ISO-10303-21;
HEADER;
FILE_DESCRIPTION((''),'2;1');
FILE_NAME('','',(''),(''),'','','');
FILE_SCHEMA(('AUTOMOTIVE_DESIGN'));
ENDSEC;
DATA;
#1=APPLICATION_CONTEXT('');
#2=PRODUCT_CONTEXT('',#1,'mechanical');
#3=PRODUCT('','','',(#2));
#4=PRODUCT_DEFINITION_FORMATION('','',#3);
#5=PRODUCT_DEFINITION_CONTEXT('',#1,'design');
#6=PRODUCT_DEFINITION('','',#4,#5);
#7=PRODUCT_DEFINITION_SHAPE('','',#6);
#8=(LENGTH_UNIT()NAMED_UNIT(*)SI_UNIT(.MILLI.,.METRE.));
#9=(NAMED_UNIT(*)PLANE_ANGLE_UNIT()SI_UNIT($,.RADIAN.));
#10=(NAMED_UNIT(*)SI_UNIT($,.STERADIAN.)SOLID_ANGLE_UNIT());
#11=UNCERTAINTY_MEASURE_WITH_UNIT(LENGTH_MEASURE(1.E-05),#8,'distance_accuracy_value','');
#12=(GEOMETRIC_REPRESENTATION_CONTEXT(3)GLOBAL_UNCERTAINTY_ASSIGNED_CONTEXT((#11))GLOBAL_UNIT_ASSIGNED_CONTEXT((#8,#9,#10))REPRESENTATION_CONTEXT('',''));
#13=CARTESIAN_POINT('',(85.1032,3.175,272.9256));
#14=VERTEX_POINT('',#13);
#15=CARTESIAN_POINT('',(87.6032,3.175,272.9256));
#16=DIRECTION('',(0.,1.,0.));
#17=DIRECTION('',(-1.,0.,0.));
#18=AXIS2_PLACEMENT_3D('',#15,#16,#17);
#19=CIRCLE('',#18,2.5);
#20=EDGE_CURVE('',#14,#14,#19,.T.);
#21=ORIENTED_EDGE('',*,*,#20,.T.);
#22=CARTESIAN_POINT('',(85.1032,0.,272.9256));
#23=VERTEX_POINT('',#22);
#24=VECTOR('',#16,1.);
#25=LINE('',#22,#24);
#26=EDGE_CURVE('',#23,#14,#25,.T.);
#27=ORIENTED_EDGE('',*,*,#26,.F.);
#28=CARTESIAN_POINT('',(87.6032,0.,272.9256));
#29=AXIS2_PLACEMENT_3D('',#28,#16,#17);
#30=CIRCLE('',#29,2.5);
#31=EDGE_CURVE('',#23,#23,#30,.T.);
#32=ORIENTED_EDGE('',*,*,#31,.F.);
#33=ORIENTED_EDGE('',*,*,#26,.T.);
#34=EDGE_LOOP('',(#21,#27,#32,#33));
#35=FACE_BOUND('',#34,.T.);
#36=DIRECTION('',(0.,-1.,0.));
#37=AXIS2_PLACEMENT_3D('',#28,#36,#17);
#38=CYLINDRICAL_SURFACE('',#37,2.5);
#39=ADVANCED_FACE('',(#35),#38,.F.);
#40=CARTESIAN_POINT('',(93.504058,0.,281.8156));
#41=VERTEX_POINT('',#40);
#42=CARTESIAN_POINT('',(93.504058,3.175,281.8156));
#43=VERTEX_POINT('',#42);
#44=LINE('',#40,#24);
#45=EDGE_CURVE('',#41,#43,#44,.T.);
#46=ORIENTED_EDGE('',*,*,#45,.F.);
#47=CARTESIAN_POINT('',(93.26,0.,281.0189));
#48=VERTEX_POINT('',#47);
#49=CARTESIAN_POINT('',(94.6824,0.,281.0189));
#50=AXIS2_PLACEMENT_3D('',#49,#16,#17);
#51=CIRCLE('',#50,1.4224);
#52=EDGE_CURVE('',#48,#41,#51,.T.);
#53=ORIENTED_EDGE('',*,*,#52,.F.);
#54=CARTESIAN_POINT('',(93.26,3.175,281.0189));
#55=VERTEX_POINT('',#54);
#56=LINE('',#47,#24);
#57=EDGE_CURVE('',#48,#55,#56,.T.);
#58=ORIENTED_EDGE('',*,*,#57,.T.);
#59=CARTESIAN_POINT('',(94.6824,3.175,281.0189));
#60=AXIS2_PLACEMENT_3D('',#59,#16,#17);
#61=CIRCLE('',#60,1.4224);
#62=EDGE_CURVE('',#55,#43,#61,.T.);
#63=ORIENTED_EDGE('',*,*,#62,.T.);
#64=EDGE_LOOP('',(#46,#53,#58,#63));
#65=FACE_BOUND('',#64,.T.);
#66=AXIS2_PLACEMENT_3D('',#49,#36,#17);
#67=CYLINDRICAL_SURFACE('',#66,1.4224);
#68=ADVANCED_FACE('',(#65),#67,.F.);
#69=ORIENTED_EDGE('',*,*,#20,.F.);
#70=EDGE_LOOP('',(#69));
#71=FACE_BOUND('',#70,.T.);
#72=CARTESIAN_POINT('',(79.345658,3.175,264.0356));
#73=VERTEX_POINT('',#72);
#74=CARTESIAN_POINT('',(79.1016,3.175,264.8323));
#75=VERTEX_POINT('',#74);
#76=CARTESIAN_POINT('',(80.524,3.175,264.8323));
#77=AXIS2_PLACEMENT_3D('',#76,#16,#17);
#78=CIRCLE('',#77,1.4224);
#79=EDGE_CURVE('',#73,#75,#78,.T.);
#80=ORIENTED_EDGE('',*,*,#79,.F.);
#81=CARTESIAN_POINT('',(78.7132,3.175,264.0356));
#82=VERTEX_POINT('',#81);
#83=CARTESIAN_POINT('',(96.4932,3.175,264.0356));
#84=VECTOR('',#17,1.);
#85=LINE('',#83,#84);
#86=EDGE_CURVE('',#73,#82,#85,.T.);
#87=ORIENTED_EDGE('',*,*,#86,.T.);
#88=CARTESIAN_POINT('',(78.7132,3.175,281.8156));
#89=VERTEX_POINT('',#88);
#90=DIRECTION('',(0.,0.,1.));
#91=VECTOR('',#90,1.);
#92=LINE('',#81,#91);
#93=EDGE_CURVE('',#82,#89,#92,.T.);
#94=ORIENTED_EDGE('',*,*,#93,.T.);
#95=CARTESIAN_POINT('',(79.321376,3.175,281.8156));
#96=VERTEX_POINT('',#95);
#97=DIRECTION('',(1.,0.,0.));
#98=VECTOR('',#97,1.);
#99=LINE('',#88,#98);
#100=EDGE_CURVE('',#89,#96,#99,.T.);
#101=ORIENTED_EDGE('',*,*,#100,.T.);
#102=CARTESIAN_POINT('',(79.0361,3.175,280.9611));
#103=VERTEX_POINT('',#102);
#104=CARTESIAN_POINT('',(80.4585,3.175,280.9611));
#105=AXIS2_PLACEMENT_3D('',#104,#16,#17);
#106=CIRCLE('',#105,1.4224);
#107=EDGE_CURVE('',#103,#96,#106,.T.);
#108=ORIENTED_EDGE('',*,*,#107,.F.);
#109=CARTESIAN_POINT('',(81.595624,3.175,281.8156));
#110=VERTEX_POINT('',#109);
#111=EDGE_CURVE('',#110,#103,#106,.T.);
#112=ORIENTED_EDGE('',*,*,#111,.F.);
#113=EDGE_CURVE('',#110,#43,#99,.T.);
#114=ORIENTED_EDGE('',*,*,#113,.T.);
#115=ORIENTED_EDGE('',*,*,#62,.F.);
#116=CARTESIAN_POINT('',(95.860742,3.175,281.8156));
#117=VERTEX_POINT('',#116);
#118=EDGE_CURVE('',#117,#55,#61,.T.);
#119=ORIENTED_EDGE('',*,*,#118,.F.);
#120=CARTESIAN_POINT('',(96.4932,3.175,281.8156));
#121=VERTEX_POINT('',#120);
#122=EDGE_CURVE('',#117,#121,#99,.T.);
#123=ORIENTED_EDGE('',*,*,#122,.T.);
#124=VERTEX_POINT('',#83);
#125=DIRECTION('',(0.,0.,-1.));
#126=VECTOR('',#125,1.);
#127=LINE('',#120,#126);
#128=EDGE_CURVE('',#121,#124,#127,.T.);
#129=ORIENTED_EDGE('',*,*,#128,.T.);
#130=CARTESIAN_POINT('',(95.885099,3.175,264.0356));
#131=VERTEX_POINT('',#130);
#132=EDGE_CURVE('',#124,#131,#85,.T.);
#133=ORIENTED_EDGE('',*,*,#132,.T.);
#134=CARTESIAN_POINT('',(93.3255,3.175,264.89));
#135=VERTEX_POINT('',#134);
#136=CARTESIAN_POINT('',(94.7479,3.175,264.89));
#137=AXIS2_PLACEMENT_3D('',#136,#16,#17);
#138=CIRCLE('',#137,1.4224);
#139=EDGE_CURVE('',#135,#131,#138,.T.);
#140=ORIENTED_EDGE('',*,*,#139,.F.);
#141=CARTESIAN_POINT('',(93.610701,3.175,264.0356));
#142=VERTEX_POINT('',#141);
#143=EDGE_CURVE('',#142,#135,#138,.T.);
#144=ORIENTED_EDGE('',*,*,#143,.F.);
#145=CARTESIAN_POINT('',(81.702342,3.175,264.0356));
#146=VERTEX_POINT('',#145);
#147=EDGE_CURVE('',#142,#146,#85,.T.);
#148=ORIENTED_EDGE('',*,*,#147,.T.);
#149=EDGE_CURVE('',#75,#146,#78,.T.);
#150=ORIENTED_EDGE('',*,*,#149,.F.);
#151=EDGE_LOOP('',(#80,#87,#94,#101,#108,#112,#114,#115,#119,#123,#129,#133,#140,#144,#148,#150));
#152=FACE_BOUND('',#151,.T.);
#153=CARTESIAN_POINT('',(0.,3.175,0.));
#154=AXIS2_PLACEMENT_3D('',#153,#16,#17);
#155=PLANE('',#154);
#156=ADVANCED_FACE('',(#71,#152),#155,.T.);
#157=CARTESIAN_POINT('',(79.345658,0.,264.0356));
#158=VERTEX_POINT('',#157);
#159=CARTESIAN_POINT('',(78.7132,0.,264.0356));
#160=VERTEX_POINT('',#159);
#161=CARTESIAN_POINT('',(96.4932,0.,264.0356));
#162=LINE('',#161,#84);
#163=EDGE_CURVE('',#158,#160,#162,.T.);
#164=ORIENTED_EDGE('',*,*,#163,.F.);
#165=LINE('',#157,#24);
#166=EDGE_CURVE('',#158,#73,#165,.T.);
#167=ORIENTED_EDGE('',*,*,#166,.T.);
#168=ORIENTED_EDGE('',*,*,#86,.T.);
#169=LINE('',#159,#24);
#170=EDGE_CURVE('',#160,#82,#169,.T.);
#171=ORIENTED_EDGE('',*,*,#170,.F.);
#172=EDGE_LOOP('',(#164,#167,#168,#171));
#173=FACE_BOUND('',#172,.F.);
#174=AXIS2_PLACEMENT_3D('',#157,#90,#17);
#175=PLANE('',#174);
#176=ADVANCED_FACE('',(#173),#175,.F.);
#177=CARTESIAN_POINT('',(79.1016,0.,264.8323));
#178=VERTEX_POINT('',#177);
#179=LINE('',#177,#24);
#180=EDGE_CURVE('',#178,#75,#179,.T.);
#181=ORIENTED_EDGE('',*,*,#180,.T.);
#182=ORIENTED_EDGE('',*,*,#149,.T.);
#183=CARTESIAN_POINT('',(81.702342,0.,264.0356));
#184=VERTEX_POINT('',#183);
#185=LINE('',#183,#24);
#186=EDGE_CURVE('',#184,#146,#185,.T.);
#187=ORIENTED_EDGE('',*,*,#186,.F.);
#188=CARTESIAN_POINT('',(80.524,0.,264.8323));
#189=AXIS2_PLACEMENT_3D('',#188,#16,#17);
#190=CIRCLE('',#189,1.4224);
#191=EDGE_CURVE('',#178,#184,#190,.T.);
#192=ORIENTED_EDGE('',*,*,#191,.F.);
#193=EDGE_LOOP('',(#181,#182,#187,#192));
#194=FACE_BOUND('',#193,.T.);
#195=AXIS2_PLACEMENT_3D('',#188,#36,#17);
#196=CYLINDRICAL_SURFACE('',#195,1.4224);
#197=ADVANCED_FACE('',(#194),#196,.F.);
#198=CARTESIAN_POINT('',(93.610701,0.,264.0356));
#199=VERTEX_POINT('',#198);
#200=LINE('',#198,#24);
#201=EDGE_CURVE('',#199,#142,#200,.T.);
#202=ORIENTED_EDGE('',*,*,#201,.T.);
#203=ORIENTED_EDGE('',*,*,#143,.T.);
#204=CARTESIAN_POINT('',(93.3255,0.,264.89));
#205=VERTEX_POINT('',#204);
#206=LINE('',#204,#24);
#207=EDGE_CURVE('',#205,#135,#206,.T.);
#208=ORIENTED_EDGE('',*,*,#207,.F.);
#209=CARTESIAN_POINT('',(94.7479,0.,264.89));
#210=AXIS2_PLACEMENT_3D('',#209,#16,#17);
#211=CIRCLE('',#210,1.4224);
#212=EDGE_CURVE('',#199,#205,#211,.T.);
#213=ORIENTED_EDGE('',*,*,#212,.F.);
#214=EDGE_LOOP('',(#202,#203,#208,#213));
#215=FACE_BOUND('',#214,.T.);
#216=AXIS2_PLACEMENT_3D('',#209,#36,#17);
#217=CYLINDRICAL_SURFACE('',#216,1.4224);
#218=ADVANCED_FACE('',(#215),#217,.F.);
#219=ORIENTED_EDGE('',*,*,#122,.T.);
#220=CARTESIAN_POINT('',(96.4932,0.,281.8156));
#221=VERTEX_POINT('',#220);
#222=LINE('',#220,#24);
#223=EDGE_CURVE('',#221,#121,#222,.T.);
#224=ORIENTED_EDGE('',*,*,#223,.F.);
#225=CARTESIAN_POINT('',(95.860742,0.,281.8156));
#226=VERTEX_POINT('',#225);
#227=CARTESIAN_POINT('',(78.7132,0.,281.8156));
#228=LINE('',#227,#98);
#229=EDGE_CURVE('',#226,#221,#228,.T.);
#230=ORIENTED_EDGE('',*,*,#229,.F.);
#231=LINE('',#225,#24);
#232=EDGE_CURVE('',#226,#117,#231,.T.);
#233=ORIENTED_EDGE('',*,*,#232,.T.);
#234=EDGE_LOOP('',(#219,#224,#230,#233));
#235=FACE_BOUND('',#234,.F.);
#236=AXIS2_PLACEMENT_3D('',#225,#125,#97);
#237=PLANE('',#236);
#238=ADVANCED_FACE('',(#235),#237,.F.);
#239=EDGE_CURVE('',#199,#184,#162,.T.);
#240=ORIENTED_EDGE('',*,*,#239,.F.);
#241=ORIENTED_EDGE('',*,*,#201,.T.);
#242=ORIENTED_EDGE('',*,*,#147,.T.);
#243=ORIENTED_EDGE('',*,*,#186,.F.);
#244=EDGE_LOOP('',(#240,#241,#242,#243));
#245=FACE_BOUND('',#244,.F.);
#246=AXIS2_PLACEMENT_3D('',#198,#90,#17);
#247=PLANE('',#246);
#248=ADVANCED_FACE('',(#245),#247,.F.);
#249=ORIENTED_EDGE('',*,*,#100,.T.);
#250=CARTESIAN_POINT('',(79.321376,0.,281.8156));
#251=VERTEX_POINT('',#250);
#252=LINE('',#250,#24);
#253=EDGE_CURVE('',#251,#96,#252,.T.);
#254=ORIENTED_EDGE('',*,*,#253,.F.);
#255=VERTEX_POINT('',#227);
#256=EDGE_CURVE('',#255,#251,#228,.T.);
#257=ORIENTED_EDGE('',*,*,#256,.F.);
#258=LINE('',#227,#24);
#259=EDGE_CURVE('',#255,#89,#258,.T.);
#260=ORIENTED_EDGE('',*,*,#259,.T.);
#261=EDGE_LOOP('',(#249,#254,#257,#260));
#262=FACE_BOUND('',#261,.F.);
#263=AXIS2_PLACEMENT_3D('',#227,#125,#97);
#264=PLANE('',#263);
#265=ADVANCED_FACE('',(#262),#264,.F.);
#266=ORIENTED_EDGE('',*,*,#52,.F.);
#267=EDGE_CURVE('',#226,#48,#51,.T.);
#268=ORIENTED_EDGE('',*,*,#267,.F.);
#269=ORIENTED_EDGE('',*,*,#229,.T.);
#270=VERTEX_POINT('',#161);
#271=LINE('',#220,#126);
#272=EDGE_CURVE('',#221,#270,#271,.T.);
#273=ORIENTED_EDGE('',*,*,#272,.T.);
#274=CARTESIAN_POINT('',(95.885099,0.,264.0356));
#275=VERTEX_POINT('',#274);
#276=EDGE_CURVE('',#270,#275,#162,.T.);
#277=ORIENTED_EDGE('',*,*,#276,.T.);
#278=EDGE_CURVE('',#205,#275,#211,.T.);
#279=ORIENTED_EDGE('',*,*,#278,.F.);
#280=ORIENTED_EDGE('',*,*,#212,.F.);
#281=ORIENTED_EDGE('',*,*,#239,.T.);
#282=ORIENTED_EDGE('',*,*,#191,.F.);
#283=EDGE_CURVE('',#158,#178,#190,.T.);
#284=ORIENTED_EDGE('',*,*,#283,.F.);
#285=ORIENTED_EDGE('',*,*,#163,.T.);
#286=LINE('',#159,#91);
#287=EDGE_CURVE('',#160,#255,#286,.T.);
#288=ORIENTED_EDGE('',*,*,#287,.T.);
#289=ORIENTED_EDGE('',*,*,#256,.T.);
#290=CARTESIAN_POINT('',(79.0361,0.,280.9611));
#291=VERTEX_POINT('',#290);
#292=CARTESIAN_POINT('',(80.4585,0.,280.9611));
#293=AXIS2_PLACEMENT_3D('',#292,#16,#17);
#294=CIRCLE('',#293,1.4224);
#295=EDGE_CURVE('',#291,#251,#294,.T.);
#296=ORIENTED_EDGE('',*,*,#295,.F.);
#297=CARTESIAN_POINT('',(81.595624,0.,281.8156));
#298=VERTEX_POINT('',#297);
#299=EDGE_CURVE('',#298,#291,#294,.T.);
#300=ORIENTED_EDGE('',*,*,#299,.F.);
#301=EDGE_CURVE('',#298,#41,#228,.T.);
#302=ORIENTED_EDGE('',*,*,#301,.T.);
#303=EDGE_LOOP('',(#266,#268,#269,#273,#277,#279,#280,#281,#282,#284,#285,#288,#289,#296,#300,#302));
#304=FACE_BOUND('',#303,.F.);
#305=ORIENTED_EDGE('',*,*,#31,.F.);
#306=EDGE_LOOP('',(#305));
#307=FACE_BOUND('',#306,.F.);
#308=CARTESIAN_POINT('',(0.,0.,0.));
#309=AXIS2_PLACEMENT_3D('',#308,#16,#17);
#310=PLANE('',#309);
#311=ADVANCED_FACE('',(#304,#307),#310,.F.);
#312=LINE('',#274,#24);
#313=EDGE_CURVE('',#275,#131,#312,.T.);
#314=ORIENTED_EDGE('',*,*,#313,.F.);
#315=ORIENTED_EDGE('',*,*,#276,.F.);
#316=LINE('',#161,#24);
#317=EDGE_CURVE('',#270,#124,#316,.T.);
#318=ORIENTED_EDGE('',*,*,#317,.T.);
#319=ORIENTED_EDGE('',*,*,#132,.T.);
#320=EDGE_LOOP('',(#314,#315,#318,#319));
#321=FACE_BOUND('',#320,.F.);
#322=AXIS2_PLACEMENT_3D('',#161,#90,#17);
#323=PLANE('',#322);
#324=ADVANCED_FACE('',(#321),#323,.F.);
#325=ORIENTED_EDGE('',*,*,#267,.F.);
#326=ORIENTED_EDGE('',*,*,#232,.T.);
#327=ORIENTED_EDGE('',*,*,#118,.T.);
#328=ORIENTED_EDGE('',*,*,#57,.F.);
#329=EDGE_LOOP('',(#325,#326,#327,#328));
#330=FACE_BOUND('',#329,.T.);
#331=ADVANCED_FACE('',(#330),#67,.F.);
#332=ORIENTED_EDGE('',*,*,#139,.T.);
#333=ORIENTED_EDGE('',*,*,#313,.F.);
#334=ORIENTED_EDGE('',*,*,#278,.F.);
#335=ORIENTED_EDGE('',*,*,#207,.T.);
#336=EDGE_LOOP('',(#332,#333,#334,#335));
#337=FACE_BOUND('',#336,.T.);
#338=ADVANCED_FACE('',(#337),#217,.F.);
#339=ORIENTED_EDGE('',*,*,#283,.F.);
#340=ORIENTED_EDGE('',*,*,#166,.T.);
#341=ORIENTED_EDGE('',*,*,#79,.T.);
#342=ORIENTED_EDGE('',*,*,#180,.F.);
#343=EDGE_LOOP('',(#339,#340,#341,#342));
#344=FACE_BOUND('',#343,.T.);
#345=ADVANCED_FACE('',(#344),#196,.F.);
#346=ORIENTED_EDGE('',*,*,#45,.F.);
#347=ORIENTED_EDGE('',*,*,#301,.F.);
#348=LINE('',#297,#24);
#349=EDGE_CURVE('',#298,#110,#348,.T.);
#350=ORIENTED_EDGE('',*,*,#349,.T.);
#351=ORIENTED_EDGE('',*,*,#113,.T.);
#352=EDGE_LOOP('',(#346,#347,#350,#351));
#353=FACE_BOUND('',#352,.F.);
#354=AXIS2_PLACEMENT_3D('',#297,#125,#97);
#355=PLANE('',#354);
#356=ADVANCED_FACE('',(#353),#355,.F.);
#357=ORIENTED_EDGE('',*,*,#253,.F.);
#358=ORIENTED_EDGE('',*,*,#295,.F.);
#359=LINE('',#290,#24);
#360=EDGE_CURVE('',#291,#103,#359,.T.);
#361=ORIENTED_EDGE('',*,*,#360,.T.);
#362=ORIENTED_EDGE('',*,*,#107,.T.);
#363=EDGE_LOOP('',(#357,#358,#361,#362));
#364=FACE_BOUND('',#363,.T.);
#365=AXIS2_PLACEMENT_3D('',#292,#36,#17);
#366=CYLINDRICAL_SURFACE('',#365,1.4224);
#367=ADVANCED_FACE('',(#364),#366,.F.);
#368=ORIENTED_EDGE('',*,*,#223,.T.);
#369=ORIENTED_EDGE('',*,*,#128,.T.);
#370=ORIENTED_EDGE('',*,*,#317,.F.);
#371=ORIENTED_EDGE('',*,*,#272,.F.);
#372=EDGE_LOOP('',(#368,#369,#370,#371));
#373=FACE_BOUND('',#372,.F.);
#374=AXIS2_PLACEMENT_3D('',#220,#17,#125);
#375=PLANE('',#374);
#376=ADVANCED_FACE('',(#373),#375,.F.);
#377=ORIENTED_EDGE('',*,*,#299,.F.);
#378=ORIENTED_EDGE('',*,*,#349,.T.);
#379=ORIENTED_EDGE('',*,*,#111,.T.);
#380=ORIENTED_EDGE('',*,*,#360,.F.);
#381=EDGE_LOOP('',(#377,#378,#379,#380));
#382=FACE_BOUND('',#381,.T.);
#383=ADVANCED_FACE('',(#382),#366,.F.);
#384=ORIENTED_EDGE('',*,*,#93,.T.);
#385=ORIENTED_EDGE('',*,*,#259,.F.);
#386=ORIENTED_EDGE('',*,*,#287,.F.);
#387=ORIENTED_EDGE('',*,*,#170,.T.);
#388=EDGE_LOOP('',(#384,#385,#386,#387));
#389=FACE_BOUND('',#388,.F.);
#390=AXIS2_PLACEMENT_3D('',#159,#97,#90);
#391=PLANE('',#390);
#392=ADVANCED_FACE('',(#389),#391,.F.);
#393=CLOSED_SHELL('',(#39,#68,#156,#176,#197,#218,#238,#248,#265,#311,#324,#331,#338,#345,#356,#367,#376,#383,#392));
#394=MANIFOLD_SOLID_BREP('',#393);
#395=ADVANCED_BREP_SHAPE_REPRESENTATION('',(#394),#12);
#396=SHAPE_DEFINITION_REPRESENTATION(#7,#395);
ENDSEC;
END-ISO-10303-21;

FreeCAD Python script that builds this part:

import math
import FreeCAD as App
import Part
import Sketcher
from FreeCAD import Vector
Q = App.Units.Quantity

doc = App.newDocument("Part")
body = doc.addObject("PartDesign::Body", "Body")

# Sketch on XZ plane
sketch1 = body.newObject("Sketcher::SketchObject", "Sketch")
sketch1.AttachmentSupport = (doc.getObject("XZ_Plane"), [""])
sketch1.MapMode = "FlatFace"
sketch1.addGeometry(Part.ArcOfCircle(Part.Circle(Vector(94.6824, 281.0189, 0), Vector(0, 0, 1), 1.4224), math.radians(145.936617), math.radians(394.063383)), False)
sketch1.addGeometry(Part.LineSegment(Vector(95.860742, 281.8156, 0), Vector(96.4932, 281.8156, 0)), False)
sketch1.addGeometry(Part.LineSegment(Vector(96.4932, 281.8156, 0), Vector(96.4932, 264.0356, 0)), False)
sketch1.addGeometry(Part.LineSegment(Vector(96.4932, 264.0356, 0), Vector(95.885099, 264.0356, 0)), False)
sketch1.addGeometry(Part.ArcOfCircle(Part.Circle(Vector(94.7479, 264.89, 0), Vector(0, 0, 1), 1.4224), math.radians(-36.91825), math.radians(216.91825)), False)
sketch1.addGeometry(Part.LineSegment(Vector(93.610701, 264.0356, 0), Vector(81.702342, 264.0356, 0)), False)
sketch1.addGeometry(Part.ArcOfCircle(Part.Circle(Vector(80.524, 264.8323, 0), Vector(0, 0, 1), 1.4224), math.radians(-34.063383), math.radians(214.063383)), False)
sketch1.addGeometry(Part.LineSegment(Vector(79.345658, 264.0356, 0), Vector(78.7132, 264.0356, 0)), False)
sketch1.addGeometry(Part.LineSegment(Vector(78.7132, 264.0356, 0), Vector(78.7132, 281.8156, 0)), False)
sketch1.addGeometry(Part.LineSegment(Vector(78.7132, 281.8156, 0), Vector(79.321376, 281.8156, 0)), False)
sketch1.addGeometry(Part.ArcOfCircle(Part.Circle(Vector(80.4585, 280.9611, 0), Vector(0, 0, 1), 1.4224), math.radians(143.076711), math.radians(396.923289)), False)
sketch1.addGeometry(Part.LineSegment(Vector(81.595624, 281.8156, 0), Vector(93.504058, 281.8156, 0)), False)
sketch1.addGeometry(Part.Circle(Vector(87.6032, 272.9256, 0), Vector(0, 0, 1), 2.5), False)
sketch1.addConstraint(Sketcher.Constraint("Coincident", 0, 2, 1, 1))
sketch1.addConstraint(Sketcher.Constraint("Coincident", 1, 2, 2, 1))
sketch1.addConstraint(Sketcher.Constraint("Coincident", 2, 2, 3, 1))
sketch1.addConstraint(Sketcher.Constraint("Coincident", 3, 2, 4, 1))
sketch1.addConstraint(Sketcher.Constraint("Coincident", 4, 2, 5, 1))
sketch1.addConstraint(Sketcher.Constraint("Coincident", 5, 2, 6, 1))
sketch1.addConstraint(Sketcher.Constraint("Coincident", 6, 2, 7, 1))
sketch1.addConstraint(Sketcher.Constraint("Coincident", 7, 2, 8, 1))
sketch1.addConstraint(Sketcher.Constraint("Coincident", 8, 2, 9, 1))
sketch1.addConstraint(Sketcher.Constraint("Coincident", 9, 2, 10, 1))
sketch1.addConstraint(Sketcher.Constraint("Coincident", 10, 2, 11, 1))
sketch1.addConstraint(Sketcher.Constraint("Coincident", 11, 2, 0, 1))
sketch1.addConstraint(Sketcher.Constraint("Horizontal", 1))
sketch1.addConstraint(Sketcher.Constraint("Vertical", 2))
sketch1.addConstraint(Sketcher.Constraint("Horizontal", 3))
sketch1.addConstraint(Sketcher.Constraint("Horizontal", 5))
sketch1.addConstraint(Sketcher.Constraint("Horizontal", 7))
sketch1.addConstraint(Sketcher.Constraint("Vertical", 8))
sketch1.addConstraint(Sketcher.Constraint("Horizontal", 9))
sketch1.addConstraint(Sketcher.Constraint("Horizontal", 11))
sketch1.addConstraint(Sketcher.Constraint("Equal", 0, 4))
sketch1.addConstraint(Sketcher.Constraint("Equal", 4, 6))
sketch1.addConstraint(Sketcher.Constraint("Equal", 6, 10))
sketch1.addConstraint(Sketcher.Constraint("Horizontal", 3, 2, 4, 2))
sketch1.addConstraint(Sketcher.Constraint("Horizontal", 5, 2, 6, 2))
sketch1.addConstraint(Sketcher.Constraint("Horizontal", 1, 2, 8, 2))
sketch1.addConstraint(Sketcher.Constraint("Horizontal", 9, 2, 10, 2))
sketch1.addConstraint(Sketcher.Constraint("Equal", 1, 7))
sketch1.addConstraint(Sketcher.Constraint("Equal", 3, 9))
sketch1.addConstraint(Sketcher.Constraint("Equal", 5, 11))
sketch1.addConstraint(Sketcher.Constraint("DistanceY", 2, 2, 2, 1, Q("0.7 in")))
sketch1.addConstraint(Sketcher.Constraint("Radius", 0, Q("0.056 in")))
sketch1.addConstraint(Sketcher.Constraint("Diameter", 12, Q("5 mm")))
sketch1.addConstraint(Sketcher.Constraint("DistanceX", 6, 3, 4, 3, Q("0.56 in")))
sketch1.addConstraint(Sketcher.Constraint("DistanceY", 12, 3, 0, 2, Q("0.35 in")))
sketch1.addConstraint(Sketcher.Constraint("DistanceX", 12, 3, 1, 2, Q("0.35 in")))
sketch1.addConstraint(Sketcher.Constraint("DistanceX", 7, 2, 12, 3, Q("0.35 in")))
sketch1.addConstraint(Sketcher.Constraint("DistanceX", 1, 1, 1, 2, Q("0.0249 in")))
sketch1.addConstraint(Sketcher.Constraint("DistanceX", -1, 1, 3, 2, Q("3.775 in")))
sketch1.addConstraint(Sketcher.Constraint("DistanceY", 4, 3, 0, 3, Q("0.635 in")))
sketch1.addConstraint(Sketcher.Constraint("DistanceY", 6, 3, 10, 3, Q("0.635 in")))
sketch1.addConstraint(Sketcher.Constraint("DistanceX", 3, 2, 3, 1, Q("0.608 mm")))
sketch1.addConstraint(Sketcher.Constraint("DistanceY", -1, 1, 12, 3, Q("10.7451 in")))
pad1 = body.newObject("PartDesign::Pad", "Pad")
pad1.Profile = sketch1
pad1.Length = Q("0.125 in")
pad1.Reversed = True

doc.recompute()
